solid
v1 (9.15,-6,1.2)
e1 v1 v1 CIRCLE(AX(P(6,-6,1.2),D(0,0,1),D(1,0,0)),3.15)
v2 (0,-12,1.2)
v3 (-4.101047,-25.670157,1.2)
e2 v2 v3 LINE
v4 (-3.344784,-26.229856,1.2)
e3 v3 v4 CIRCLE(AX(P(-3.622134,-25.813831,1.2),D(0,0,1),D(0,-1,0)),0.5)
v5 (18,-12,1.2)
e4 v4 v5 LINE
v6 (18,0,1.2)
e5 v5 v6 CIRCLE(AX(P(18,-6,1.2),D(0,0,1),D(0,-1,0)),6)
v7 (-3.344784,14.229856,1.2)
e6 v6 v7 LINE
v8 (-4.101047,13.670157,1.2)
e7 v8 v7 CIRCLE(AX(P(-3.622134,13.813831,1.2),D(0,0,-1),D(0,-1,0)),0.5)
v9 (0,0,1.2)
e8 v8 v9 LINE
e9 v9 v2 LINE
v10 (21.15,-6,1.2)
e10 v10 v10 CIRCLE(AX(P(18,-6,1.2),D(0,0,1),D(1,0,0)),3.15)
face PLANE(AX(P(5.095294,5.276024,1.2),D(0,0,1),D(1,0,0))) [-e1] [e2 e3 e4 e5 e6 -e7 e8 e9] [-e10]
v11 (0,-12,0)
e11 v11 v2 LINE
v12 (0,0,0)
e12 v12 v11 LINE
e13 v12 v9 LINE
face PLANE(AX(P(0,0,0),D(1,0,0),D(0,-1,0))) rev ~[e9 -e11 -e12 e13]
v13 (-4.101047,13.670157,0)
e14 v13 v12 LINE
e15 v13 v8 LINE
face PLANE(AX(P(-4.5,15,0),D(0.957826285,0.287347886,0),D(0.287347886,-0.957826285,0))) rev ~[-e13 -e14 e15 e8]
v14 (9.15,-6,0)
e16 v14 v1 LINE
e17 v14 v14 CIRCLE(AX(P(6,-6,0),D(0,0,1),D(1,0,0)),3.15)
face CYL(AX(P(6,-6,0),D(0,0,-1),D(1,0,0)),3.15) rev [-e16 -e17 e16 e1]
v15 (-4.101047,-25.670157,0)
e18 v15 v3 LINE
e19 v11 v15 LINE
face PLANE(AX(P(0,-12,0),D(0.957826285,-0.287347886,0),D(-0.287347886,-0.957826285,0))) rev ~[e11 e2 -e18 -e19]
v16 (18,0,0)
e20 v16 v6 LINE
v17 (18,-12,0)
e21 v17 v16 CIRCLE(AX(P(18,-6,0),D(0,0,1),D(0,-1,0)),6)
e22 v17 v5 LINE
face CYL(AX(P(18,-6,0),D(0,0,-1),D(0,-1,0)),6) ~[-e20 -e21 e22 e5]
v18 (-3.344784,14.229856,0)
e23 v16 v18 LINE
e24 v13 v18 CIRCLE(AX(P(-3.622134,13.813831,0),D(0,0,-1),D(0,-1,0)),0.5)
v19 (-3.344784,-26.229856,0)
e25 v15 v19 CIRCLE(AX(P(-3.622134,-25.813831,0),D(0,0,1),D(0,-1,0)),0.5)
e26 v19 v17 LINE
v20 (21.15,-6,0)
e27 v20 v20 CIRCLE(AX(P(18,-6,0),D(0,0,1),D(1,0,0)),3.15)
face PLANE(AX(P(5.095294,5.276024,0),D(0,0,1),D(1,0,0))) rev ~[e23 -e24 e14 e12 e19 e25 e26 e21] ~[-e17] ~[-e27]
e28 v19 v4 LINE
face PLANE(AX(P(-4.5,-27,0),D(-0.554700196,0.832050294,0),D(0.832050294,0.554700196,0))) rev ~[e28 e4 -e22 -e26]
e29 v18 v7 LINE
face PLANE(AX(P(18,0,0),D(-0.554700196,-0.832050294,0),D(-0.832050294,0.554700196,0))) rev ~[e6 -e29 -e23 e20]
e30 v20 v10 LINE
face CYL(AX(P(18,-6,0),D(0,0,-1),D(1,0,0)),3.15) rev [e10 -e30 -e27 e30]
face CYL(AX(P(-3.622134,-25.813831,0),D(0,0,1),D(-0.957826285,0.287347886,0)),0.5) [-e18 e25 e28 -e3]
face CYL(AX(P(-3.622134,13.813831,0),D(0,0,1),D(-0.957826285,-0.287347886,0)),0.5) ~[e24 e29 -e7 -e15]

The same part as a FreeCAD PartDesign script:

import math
import FreeCAD as App
import Part
import Sketcher

V = App.Vector


def edges_at(feature, points):
    """Names of the edges that pass closest to the given points."""
    edges = feature.Shape.Edges
    near = lambda p: min(range(len(edges)), key=lambda i: edges[i].distToShape(Part.Vertex(*p))[0])
    return sorted({f"Edge{near(p) + 1}" for p in points})

doc = App.newDocument("Part")
params = doc.addObject("Spreadsheet::Sheet", "Params")
for row, (alias, value) in enumerate([
    ("sketch1_radius", "6 mm"),
    ("sketch1_diameter", "6.3 mm"),
    ("pad1_length", "1.2 mm"),
    ("fillet_radius", "0.5 mm"),
], start=1):
    params.set(f"A{row}", alias)
    params.set(f"B{row}", "=" + value)
    params.setAlias(f"B{row}", alias)

body = doc.addObject("PartDesign::Body", "Body")

sketch1 = doc.addObject("Sketcher::SketchObject", "Sketch")
body.addObject(sketch1)
sketch1.AttachmentSupport = (doc.XY_Plane, [""])
sketch1.MapMode = "FlatFace"
sketch1.addGeometry([
    Part.LineSegment(V(-4.5, 15, 0), V(0, 0, 0)),
    Part.LineSegment(V(0, 0, 0), V(0, -12, 0)),
    Part.LineSegment(V(0, -12, 0), V(-4.5, -27, 0)),
    Part.LineSegment(V(-4.5, -27, 0), V(18, -12, 0)),
    Part.ArcOfCircle(Part.Circle(V(18, -6, 0), V(0, 0, 1), 6), math.radians(-90), math.radians(90)),
    Part.LineSegment(V(18, 0, 0), V(-4.5, 15, 0)),
    Part.Circle(V(6, -6, 0), V(0, 0, 1), 3.15),
    Part.Circle(V(18, -6, 0), V(0, 0, 1), 3.15),
], False)
sketch1.addConstraint([
    Sketcher.Constraint("Coincident", 0, 2, 1, 1),
    Sketcher.Constraint("Coincident", 1, 2, 2, 1),
    Sketcher.Constraint("Coincident", 2, 2, 3, 1),
    Sketcher.Constraint("Coincident", 3, 2, 4, 1),
    Sketcher.Constraint("Coincident", 4, 2, 5, 1),
    Sketcher.Constraint("Coincident", 5, 2, 0, 1),
    Sketcher.Constraint("Vertical", 1),
    Sketcher.Constraint("Coincident", 0, 2, -1, 1),
    Sketcher.Constraint("Coincident", 7, 3, 4, 3),
    Sketcher.Constraint("Equal", 6, 7),
    Sketcher.Constraint("PointOnObject", 4, 2, -1),
    Sketcher.Constraint("Horizontal", 4, 3, 6, 3),
    Sketcher.Constraint("Horizontal", 1, 2, 3, 2),
    Sketcher.Constraint("Vertical", 7, 3, 3, 2),
    Sketcher.Constraint("Vertical", 3, 2, 4, 2),
    Sketcher.Constraint("Vertical", 2, 2, 5, 2),
    Sketcher.Constraint("Equal", 0, 2),
    Sketcher.Constraint("Radius", 4, 6.0),
    Sketcher.Constraint("Diameter", 6, 6.3),
    Sketcher.Constraint("DistanceX", -1, 1, 4, 3, 18.0),
    Sketcher.Constraint("DistanceX", -1, 1, 6, 3, 6.0),
    Sketcher.Constraint("DistanceY", 2, 2, -1, 1, 27.0),
    Sketcher.Constraint("DistanceX", 2, 2, -1, 1, 4.5),
])
sketch1.setExpression("Constraints[17]", "Params.sketch1_radius")
sketch1.setExpression("Constraints[18]", "Params.sketch1_diameter")
pad1 = doc.addObject("PartDesign::Pad", "Pad")
body.addObject(pad1)
pad1.Profile = sketch1
pad1.setExpression("Length", "Params.pad1_length")
doc.recompute()

fillet = doc.addObject("PartDesign::Fillet", "Fillet")
body.addObject(fillet)
fillet.Base = (pad1, edges_at(pad1, [(-4.5, -27, 0.6), (-4.5, 15, 0.6)]))
fillet.setExpression("Radius", "Params.fillet_radius")

doc.recompute()
